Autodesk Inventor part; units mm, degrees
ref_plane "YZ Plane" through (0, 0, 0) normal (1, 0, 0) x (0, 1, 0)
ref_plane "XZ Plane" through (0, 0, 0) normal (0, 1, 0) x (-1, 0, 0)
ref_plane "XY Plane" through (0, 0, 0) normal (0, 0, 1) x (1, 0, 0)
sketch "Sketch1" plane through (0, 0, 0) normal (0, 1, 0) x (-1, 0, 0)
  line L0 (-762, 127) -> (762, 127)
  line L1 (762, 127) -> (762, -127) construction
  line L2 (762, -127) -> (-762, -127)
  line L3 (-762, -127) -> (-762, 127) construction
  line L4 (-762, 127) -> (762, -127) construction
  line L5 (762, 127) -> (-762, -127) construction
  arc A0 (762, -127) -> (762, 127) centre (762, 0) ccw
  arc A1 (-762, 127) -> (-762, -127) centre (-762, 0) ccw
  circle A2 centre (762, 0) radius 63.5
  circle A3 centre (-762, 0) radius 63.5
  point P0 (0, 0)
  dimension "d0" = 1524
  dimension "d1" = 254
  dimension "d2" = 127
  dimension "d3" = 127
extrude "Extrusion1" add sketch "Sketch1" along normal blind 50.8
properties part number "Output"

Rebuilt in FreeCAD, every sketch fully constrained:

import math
import FreeCAD as App
import Part
import Sketcher
Q = App.Units.Quantity

doc = App.newDocument("Part")
body = doc.addObject("PartDesign::Body", "Body")

sketch1 = body.newObject("Sketcher::SketchObject", "Sketch")
sketch1.AttachmentSupport = (doc.getObject("XZ_Plane"), [""])
sketch1.MapMode = "FlatFace"
sketch1.addGeometry(Part.LineSegment(App.Vector(-762, 127, 0), App.Vector(762, 127, 0)), False)
sketch1.addGeometry(Part.ArcOfCircle(Part.Circle(App.Vector(762, 0, 0), App.Vector(0, 0, 1), 127), math.radians(-90), math.radians(90)), False)
sketch1.addGeometry(Part.LineSegment(App.Vector(762, -127, 0), App.Vector(-762, -127, 0)), False)
sketch1.addGeometry(Part.ArcOfCircle(Part.Circle(App.Vector(-762, 0, 0), App.Vector(0, 0, 1), 127), math.radians(90), math.radians(270)), False)
sketch1.addGeometry(Part.Circle(App.Vector(762, 0, 0), App.Vector(0, 0, 1), 64), False)
sketch1.addGeometry(Part.Circle(App.Vector(-762, 0, 0), App.Vector(0, 0, 1), 64), False)
sketch1.addConstraint(Sketcher.Constraint("Tangent", 0, 2, 1, 2))
sketch1.addConstraint(Sketcher.Constraint("Tangent", 1, 1, 2, 1))
sketch1.addConstraint(Sketcher.Constraint("Tangent", 2, 2, 3, 2))
sketch1.addConstraint(Sketcher.Constraint("Tangent", 3, 1, 0, 1))
sketch1.addConstraint(Sketcher.Constraint("Horizontal", 0))
sketch1.addConstraint(Sketcher.Constraint("Horizontal", 2))
sketch1.addConstraint(Sketcher.Constraint("Coincident", 4, 3, 1, 3))
sketch1.addConstraint(Sketcher.Constraint("Coincident", 5, 3, 3, 3))
sketch1.addConstraint(Sketcher.Constraint("Equal", 4, 5))
sketch1.addConstraint(Sketcher.Constraint("Symmetric", 1, 3, 3, 3, -1, 1))
sketch1.addConstraint(Sketcher.Constraint("Diameter", 4, Q("5 in")))
sketch1.addConstraint(Sketcher.Constraint("Radius", 1, Q("5 in")))
sketch1.addConstraint(Sketcher.Constraint("DistanceX", 0, 1, 0, 2, Q("60 in")))
pad1 = body.newObject("PartDesign::Pad", "Pad")
pad1.Profile = sketch1
pad1.Length = Q("2 in")
pad1.Reversed = True

doc.recompute()
